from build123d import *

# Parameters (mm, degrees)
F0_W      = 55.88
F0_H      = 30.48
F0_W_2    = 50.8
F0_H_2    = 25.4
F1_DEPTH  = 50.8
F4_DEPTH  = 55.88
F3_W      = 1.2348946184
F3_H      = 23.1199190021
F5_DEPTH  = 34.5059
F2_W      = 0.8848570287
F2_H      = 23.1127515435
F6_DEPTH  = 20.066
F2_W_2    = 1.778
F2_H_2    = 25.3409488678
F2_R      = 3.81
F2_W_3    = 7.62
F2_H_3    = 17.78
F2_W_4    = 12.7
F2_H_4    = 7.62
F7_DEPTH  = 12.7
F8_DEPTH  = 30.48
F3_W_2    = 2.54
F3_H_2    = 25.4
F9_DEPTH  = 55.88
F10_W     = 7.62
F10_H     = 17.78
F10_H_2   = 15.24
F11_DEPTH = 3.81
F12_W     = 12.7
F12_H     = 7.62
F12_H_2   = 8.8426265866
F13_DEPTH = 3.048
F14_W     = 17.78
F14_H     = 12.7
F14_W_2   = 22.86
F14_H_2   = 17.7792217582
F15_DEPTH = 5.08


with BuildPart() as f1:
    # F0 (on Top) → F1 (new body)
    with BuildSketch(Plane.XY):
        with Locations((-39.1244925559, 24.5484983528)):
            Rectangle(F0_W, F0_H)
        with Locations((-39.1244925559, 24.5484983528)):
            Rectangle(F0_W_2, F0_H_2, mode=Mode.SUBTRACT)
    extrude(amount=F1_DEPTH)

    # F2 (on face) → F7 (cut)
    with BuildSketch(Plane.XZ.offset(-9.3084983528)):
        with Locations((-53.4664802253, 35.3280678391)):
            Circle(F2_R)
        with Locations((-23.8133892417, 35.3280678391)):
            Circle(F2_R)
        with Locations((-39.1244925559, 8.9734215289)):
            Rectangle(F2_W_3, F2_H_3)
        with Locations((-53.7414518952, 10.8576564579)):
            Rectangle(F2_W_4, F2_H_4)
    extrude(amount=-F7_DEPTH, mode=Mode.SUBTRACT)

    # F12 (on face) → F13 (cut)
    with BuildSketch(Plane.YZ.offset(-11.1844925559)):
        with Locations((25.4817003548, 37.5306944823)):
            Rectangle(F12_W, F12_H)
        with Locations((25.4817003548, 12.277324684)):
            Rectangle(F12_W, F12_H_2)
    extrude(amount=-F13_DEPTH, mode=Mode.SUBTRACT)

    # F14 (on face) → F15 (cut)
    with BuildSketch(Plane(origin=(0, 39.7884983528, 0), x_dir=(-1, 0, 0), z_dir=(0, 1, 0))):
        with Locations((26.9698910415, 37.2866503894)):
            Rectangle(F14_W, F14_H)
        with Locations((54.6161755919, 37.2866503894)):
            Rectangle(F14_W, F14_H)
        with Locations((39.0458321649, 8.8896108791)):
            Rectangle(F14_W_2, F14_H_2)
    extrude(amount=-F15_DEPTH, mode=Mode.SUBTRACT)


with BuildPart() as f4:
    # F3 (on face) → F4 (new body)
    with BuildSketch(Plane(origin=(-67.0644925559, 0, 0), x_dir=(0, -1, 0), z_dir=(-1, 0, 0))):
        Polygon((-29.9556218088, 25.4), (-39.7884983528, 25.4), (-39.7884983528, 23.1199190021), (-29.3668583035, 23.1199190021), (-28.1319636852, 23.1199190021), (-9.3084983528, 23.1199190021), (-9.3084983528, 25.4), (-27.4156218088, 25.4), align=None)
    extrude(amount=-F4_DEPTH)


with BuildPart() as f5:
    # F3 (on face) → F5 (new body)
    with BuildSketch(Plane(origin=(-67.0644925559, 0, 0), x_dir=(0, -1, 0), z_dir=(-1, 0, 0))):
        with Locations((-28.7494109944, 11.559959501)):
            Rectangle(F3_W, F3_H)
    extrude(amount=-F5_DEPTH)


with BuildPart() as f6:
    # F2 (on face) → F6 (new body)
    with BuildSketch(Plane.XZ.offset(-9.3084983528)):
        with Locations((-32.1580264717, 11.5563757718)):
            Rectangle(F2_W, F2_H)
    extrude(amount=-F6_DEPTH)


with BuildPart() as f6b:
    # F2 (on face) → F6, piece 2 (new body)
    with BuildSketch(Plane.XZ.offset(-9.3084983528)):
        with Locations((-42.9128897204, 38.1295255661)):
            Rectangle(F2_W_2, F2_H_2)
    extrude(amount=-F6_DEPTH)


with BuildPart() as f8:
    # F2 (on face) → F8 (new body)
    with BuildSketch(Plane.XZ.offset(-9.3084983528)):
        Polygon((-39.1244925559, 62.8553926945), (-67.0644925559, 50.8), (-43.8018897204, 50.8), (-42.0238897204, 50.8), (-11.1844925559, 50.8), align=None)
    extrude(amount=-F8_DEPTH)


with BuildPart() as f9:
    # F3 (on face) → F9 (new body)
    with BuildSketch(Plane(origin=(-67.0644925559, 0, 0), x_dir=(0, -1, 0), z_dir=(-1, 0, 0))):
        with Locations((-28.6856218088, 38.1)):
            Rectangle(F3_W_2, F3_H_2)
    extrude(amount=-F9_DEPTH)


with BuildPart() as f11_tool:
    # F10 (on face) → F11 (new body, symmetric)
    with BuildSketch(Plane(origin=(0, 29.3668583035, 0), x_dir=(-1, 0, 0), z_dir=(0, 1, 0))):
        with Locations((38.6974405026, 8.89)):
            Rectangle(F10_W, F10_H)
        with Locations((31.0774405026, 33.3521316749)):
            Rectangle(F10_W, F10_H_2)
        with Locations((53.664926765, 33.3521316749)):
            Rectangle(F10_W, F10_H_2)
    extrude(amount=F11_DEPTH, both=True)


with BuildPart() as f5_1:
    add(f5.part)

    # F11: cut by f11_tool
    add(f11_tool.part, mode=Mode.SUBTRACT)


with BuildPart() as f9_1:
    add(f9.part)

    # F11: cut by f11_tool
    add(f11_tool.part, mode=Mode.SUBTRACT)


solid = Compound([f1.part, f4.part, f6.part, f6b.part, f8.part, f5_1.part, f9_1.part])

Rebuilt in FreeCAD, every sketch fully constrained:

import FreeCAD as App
import Part
import Sketcher

V = App.Vector
Q = App.Units.Quantity

doc = App.newDocument("Part")
body = doc.addObject("PartDesign::Body", "Body")

# Sketch on XY plane
sketch1 = body.newObject("Sketcher::SketchObject", "Sketch")
sketch1.AttachmentSupport = (doc.getObject("XY_Plane"), [""])
sketch1.MapMode = "FlatFace"
sketch1.addGeometry([
    Part.LineSegment(V(-67, 40, 0), V(-67, 9, 0)),  # 0
    Part.LineSegment(V(-67, 9, 0), V(-11, 9, 0)),  # 1
    Part.LineSegment(V(-11, 9, 0), V(-11, 40, 0)),  # 2
    Part.LineSegment(V(-11, 40, 0), V(-67, 40, 0)),  # 3
    Part.LineSegment(V(-14, 12, 0), V(-65, 12, 0)),  # 4
    Part.LineSegment(V(-65, 12, 0), V(-65, 37, 0)),  # 5
    Part.LineSegment(V(-65, 37, 0), V(-14, 37, 0)),  # 6
    Part.LineSegment(V(-14, 37, 0), V(-14, 12, 0)),  # 7
], False)
sketch1.addConstraint([
    Sketcher.Constraint("Coincident", 0, 2, 1, 1),
    Sketcher.Constraint("Coincident", 1, 2, 2, 1),
    Sketcher.Constraint("Coincident", 2, 2, 3, 1),
    Sketcher.Constraint("Coincident", 3, 2, 0, 1),
    Sketcher.Constraint("Coincident", 4, 2, 5, 1),
    Sketcher.Constraint("Coincident", 5, 2, 6, 1),
    Sketcher.Constraint("Coincident", 6, 2, 7, 1),
    Sketcher.Constraint("Coincident", 7, 2, 4, 1),
    Sketcher.Constraint("Vertical", 0),
    Sketcher.Constraint("Horizontal", 1),
    Sketcher.Constraint("Vertical", 2),
    Sketcher.Constraint("Horizontal", 3),
    Sketcher.Constraint("Horizontal", 4),
    Sketcher.Constraint("Vertical", 5),
    Sketcher.Constraint("Horizontal", 6),
    Sketcher.Constraint("Vertical", 7),
    Sketcher.Constraint("DistanceX", 4, 2, 4, 1, Q("2 in")),
    Sketcher.Constraint("DistanceY", 5, 1, 5, 2, Q("1 in")),
    Sketcher.Constraint("DistanceX", 1, 1, 1, 2, Q("2.2 in")),
    Sketcher.Constraint("DistanceY", 0, 2, 0, 1, Q("1.2 in")),
    Sketcher.Constraint("DistanceX", 0, 2, 4, 2, Q("0.1 in")),
    Sketcher.Constraint("DistanceY", 0, 2, 4, 2, Q("0.1 in")),
    Sketcher.Constraint("DistanceY", -1, 1, 0, 2, 9.308498),
    Sketcher.Constraint("DistanceX", 0, 2, -1, 1, 67.064493),
])
pad1 = body.newObject("PartDesign::Pad", "Pad")
pad1.Profile = sketch1
pad1.Length = Q("2 in")

# Sketch on XZ plane
sketch2 = body.newObject("Sketcher::SketchObject", "Sketch001")
sketch2.AttachmentSupport = (doc.getObject("XZ_Plane"), [""])
sketch2.MapMode = "FlatFace"
sketch2.AttachmentOffset = App.Placement(V(0, 0, -9.308498), App.Rotation())
sketch2.addGeometry([
    Part.Circle(V(-53.5, 35.3, 0), V(0, 0, 1), 3.8),  # 0
    Part.Circle(V(-23.8, 35.3, 0), V(0, 0, 1), 3.8),  # 1
    Part.LineSegment(V(-42.9, 17.9, 0), V(-42.9, 0.1, 0)),  # 2
    Part.LineSegment(V(-42.9, 0.1, 0), V(-35.3, 0.1, 0)),  # 3
    Part.LineSegment(V(-35.3, 0.1, 0), V(-35.3, 17.9, 0)),  # 4
    Part.LineSegment(V(-35.3, 17.9, 0), V(-42.9, 17.9, 0)),  # 5
    Part.LineSegment(V(-60.1, 14.7, 0), V(-60.1, 7, 0)),  # 6
    Part.LineSegment(V(-60.1, 7, 0), V(-47.4, 7, 0)),  # 7
    Part.LineSegment(V(-47.4, 7, 0), V(-47.4, 14.7, 0)),  # 8
    Part.LineSegment(V(-47.4, 14.7, 0), V(-60.1, 14.7, 0)),  # 9
], False)
sketch2.addConstraint([
    Sketcher.Constraint("Coincident", 2, 2, 3, 1),
    Sketcher.Constraint("Coincident", 3, 2, 4, 1),
    Sketcher.Constraint("Coincident", 4, 2, 5, 1),
    Sketcher.Constraint("Coincident", 5, 2, 2, 1),
    Sketcher.Constraint("Coincident", 6, 2, 7, 1),
    Sketcher.Constraint("Coincident", 7, 2, 8, 1),
    Sketcher.Constraint("Coincident", 8, 2, 9, 1),
    Sketcher.Constraint("Coincident", 9, 2, 6, 1),
    Sketcher.Constraint("Vertical", 2),
    Sketcher.Constraint("Horizontal", 3),
    Sketcher.Constraint("Vertical", 4),
    Sketcher.Constraint("Horizontal", 5),
    Sketcher.Constraint("Vertical", 6),
    Sketcher.Constraint("Horizontal", 7),
    Sketcher.Constraint("Vertical", 8),
    Sketcher.Constraint("Horizontal", 9),
    Sketcher.Constraint("Equal", 0, 1),
    Sketcher.Constraint("Horizontal", 0, 3, 1, 3),
    Sketcher.Constraint("Equal", 5, 6),
    Sketcher.Constraint("Diameter", 0, Q("0.3 in")),
    Sketcher.Constraint("DistanceX", 3, 1, 3, 2, Q("0.3 in")),
    Sketcher.Constraint("DistanceX", 7, 1, 7, 2, Q("0.5 in")),
    Sketcher.Constraint("DistanceY", 2, 2, 2, 1, Q("0.7 in")),
    Sketcher.Constraint("DistanceX", 0, 3, -1, 1, 53.46648),
    Sketcher.Constraint("DistanceX", 1, 3, -1, 1, 23.813389),
    Sketcher.Constraint("DistanceY", -1, 1, 2, 2, 0.083422),
    Sketcher.Constraint("DistanceX", 6, 2, -1, 1, 60.091452),
    Sketcher.Constraint("DistanceX", 6, 2, 2, 2, 17.156959),
    Sketcher.Constraint("DistanceY", 6, 2, 0, 3, 28.280411),
    Sketcher.Constraint("DistanceY", -1, 1, 0, 3, 35.328068),
])
pocket1 = body.newObject("PartDesign::Pocket", "Pocket")
pocket1.Profile = sketch2
pocket1.Length = Q("0.5 in")

# Sketch on YZ plane
sketch3 = body.newObject("Sketcher::SketchObject", "Sketch002")
sketch3.AttachmentSupport = (doc.getObject("YZ_Plane"), [""])
sketch3.MapMode = "FlatFace"
sketch3.AttachmentOffset = App.Placement(V(0, 0, -11.184493), App.Rotation())
sketch3.addGeometry([
    Part.LineSegment(V(19, 41, 0), V(19, 34, 0)),  # 0
    Part.LineSegment(V(19, 34, 0), V(32, 34, 0)),  # 1
    Part.LineSegment(V(32, 34, 0), V(32, 41, 0)),  # 2
    Part.LineSegment(V(32, 41, 0), V(19, 41, 0)),  # 3
    Part.LineSegment(V(19, 17, 0), V(19, 8, 0)),  # 4
    Part.LineSegment(V(19, 8, 0), V(32, 8, 0)),  # 5
    Part.LineSegment(V(32, 8, 0), V(32, 17, 0)),  # 6
    Part.LineSegment(V(32, 17, 0), V(19, 17, 0)),  # 7
], False)
sketch3.addConstraint([
    Sketcher.Constraint("Coincident", 0, 2, 1, 1),
    Sketcher.Constraint("Coincident", 1, 2, 2, 1),
    Sketcher.Constraint("Coincident", 2, 2, 3, 1),
    Sketcher.Constraint("Coincident", 3, 2, 0, 1),
    Sketcher.Constraint("Coincident", 4, 2, 5, 1),
    Sketcher.Constraint("Coincident", 5, 2, 6, 1),
    Sketcher.Constraint("Coincident", 6, 2, 7, 1),
    Sketcher.Constraint("Coincident", 7, 2, 4, 1),
    Sketcher.Constraint("Vertical", 0),
    Sketcher.Constraint("Horizontal", 1),
    Sketcher.Constraint("Vertical", 2),
    Sketcher.Constraint("Horizontal", 3),
    Sketcher.Constraint("Vertical", 4),
    Sketcher.Constraint("Horizontal", 5),
    Sketcher.Constraint("Vertical", 6),
    Sketcher.Constraint("Horizontal", 7),
    Sketcher.Constraint("Vertical", 3, 2, 4, 2),
    Sketcher.Constraint("Vertical", 2, 2, 5, 2),
    Sketcher.Constraint("DistanceX", 1, 1, 1, 2, Q("0.5 in")),
    Sketcher.Constraint("DistanceY", 0, 2, 0, 1, Q("0.3 in")),
    Sketcher.Constraint("DistanceX", -1, 1, 0, 2, 19.1317),
    Sketcher.Constraint("DistanceY", 4, 2, 4, 1, 8.842627),
    Sketcher.Constraint("DistanceY", -1, 1, 4, 2, 7.856011),
    Sketcher.Constraint("DistanceY", -1, 1, 0, 2, 33.720694),
])
pocket2 = body.newObject("PartDesign::Pocket", "Pocket001")
pocket2.Profile = sketch3
pocket2.Length = Q("0.12 in")

# Sketch on XZ plane
sketch4 = body.newObject("Sketcher::SketchObject", "Sketch003")
sketch4.AttachmentSupport = (doc.getObject("XZ_Plane"), [""])
sketch4.MapMode = "FlatFace"
sketch4.AttachmentOffset = App.Placement(V(0, 0, -39.788498), App.Rotation())
sketch4.addGeometry([
    Part.LineSegment(V(-18, 44, 0), V(-18, 31, 0)),  # 0
    Part.LineSegment(V(-18, 31, 0), V(-36, 31, 0)),  # 1
    Part.LineSegment(V(-36, 31, 0), V(-36, 44, 0)),  # 2
    Part.LineSegment(V(-36, 44, 0), V(-18, 44, 0)),  # 3
    Part.LineSegment(V(-46, 44, 0), V(-46, 31, 0)),  # 4
    Part.LineSegment(V(-46, 31, 0), V(-64, 31, 0)),  # 5
    Part.LineSegment(V(-64, 31, 0), V(-64, 44, 0)),  # 6
    Part.LineSegment(V(-64, 44, 0), V(-46, 44, 0)),  # 7
    Part.LineSegment(V(-28, 18, 0), V(-28, 0, 0)),  # 8
    Part.LineSegment(V(-28, 0, 0), V(-50, 0, 0)),  # 9
    Part.LineSegment(V(-50, 0, 0), V(-50, 18, 0)),  # 10
    Part.LineSegment(V(-50, 18, 0), V(-28, 18, 0)),  # 11
], False)
sketch4.addConstraint([
    Sketcher.Constraint("Coincident", 0, 2, 1, 1),
    Sketcher.Constraint("Coincident", 1, 2, 2, 1),
    Sketcher.Constraint("Coincident", 2, 2, 3, 1),
    Sketcher.Constraint("Coincident", 3, 2, 0, 1),
    Sketcher.Constraint("Coincident", 4, 2, 5, 1),
    Sketcher.Constraint("Coincident", 5, 2, 6, 1),
    Sketcher.Constraint("Coincident", 6, 2, 7, 1),
    Sketcher.Constraint("Coincident", 7, 2, 4, 1),
    Sketcher.Constraint("Coincident", 8, 2, 9, 1),
    Sketcher.Constraint("Coincident", 9, 2, 10, 1),
    Sketcher.Constraint("Coincident", 10, 2, 11, 1),
    Sketcher.Constraint("Coincident", 11, 2, 8, 1),
    Sketcher.Constraint("Vertical", 0),
    Sketcher.Constraint("Horizontal", 1),
    Sketcher.Constraint("Vertical", 2),
    Sketcher.Constraint("Horizontal", 3),
    Sketcher.Constraint("Vertical", 4),
    Sketcher.Constraint("Horizontal", 5),
    Sketcher.Constraint("Vertical", 6),
    Sketcher.Constraint("Horizontal", 7),
    Sketcher.Constraint("Vertical", 8),
    Sketcher.Constraint("Horizontal", 9),
    Sketcher.Constraint("Vertical", 10),
    Sketcher.Constraint("Horizontal", 11),
    Sketcher.Constraint("PointOnObject", 8, 2, -1),
    Sketcher.Constraint("Horizontal", 1, 2, 4, 2),
    Sketcher.Constraint("Horizontal", 3, 2, 6, 2),
    Sketcher.Constraint("Equal", 3, 5),
    Sketcher.Constraint("DistanceX", 1, 2, 1, 1, Q("0.7 in")),
    Sketcher.Constraint("DistanceX", 9, 2, 9, 1, Q("0.9 in")),
    Sketcher.Constraint("DistanceY", 0, 2, 0, 1, Q("0.5 in")),
    Sketcher.Constraint("DistanceY", 8, 2, 8, 1, 17.779222),
    Sketcher.Constraint("DistanceX", 0, 2, -1, 1, 18.079891),
    Sketcher.Constraint("DistanceY", -1, 1, 0, 2, 30.93665),
    Sketcher.Constraint("DistanceX", 1, 2, 8, 2, 8.244059),
    Sketcher.Constraint("DistanceX", 4, 2, -1, 1, 45.726176),
])
pocket3 = body.newObject("PartDesign::Pocket", "Pocket002")
pocket3.Profile = sketch4
pocket3.Length = Q("0.2 in")
pocket3.Reversed = True
body2 = doc.addObject("PartDesign::Body", "Body001")

# Sketch on YZ plane
sketch5 = body2.newObject("Sketcher::SketchObject", "Sketch004")
sketch5.AttachmentSupport = (doc.getObject("YZ_Plane001"), [""])
sketch5.MapMode = "FlatFace"
sketch5.AttachmentOffset = App.Placement(V(0, 0, -67.064493), App.Rotation())
sketch5.addGeometry([
    Part.LineSegment(V(39.8, 25.4, 0), V(39.8, 23.1, 0)),
    Part.LineSegment(V(39.8, 23.1, 0), V(9.3, 23.1, 0)),
    Part.LineSegment(V(9.3, 23.1, 0), V(9.3, 25.4, 0)),
    Part.LineSegment(V(9.3, 25.4, 0), V(39.8, 25.4, 0)),
], False)
sketch5.addConstraint([
    Sketcher.Constraint("Coincident", 0, 2, 1, 1),
    Sketcher.Constraint("Coincident", 1, 2, 2, 1),
    Sketcher.Constraint("Coincident", 2, 2, 3, 1),
    Sketcher.Constraint("Coincident", 3, 2, 0, 1),
    Sketcher.Constraint("Vertical", 0),
    Sketcher.Constraint("Horizontal", 1),
    Sketcher.Constraint("Vertical", 2),
    Sketcher.Constraint("Horizontal", 3),
    Sketcher.Constraint("DistanceX", 1, 2, 1, 1, Q("1.2 in")),
    Sketcher.Constraint("DistanceY", -1, 1, 2, 2, Q("1 in")),
    Sketcher.Constraint("DistanceY", 0, 2, 0, 1, 2.280081),
    Sketcher.Constraint("DistanceX", -1, 1, 0, 2, 39.788498),
])
pad2 = body2.newObject("PartDesign::Pad", "Pad001")
pad2.Profile = sketch5
pad2.Length = Q("2.2 in")
body3 = doc.addObject("PartDesign::Body", "Body002")

# Sketch on YZ plane
sketch6 = body3.newObject("Sketcher::SketchObject", "Sketch005")
sketch6.AttachmentSupport = (doc.getObject("YZ_Plane002"), [""])
sketch6.MapMode = "FlatFace"
sketch6.AttachmentOffset = App.Placement(V(0, 0, -67.064493), App.Rotation())
sketch6.addGeometry([
    Part.LineSegment(V(29.4, 23.1, 0), V(29.4, 0, 0)),
    Part.LineSegment(V(29.4, 0, 0), V(28.1, 0, 0)),
    Part.LineSegment(V(28.1, 0, 0), V(28.1, 23.1, 0)),
    Part.LineSegment(V(28.1, 23.1, 0), V(29.4, 23.1, 0)),
], False)
sketch6.addConstraint([
    Sketcher.Constraint("Coincident", 0, 2, 1, 1),
    Sketcher.Constraint("Coincident", 1, 2, 2, 1),
    Sketcher.Constraint("Coincident", 2, 2, 3, 1),
    Sketcher.Constraint("Coincident", 3, 2, 0, 1),
    Sketcher.Constraint("Vertical", 0),
    Sketcher.Constraint("Horizontal", 1),
    Sketcher.Constraint("Vertical", 2),
    Sketcher.Constraint("Horizontal", 3),
    Sketcher.Constraint("PointOnObject", 0, 2, -1),
    Sketcher.Constraint("DistanceY", 0, 2, 0, 1, 23.119919),
    Sketcher.Constraint("DistanceX", 1, 2, 1, 1, 1.234895),
    Sketcher.Constraint("DistanceX", -1, 1, 0, 2, 29.366858),
])
pad3 = body3.newObject("PartDesign::Pad", "Pad002")
pad3.Profile = sketch6
pad3.Length = Q("1.3585 in")
body4 = doc.addObject("PartDesign::Body", "Body003")

# Sketch on XZ plane
sketch7 = body4.newObject("Sketcher::SketchObject", "Sketch006")
sketch7.AttachmentSupport = (doc.getObject("XZ_Plane003"), [""])
sketch7.MapMode = "FlatFace"
sketch7.AttachmentOffset = App.Placement(V(0, 0, -9.308498), App.Rotation())
sketch7.addGeometry([
    Part.LineSegment(V(-32.6, 23.1, 0), V(-32.6, 0, 0)),
    Part.LineSegment(V(-32.6, 0, 0), V(-31.7, 0, 0)),
    Part.LineSegment(V(-31.7, 0, 0), V(-31.7, 23.1, 0)),
    Part.LineSegment(V(-31.7, 23.1, 0), V(-32.6, 23.1, 0)),
], False)
sketch7.addConstraint([
    Sketcher.Constraint("Coincident", 0, 2, 1, 1),
    Sketcher.Constraint("Coincident", 1, 2, 2, 1),
    Sketcher.Constraint("Coincident", 2, 2, 3, 1),
    Sketcher.Constraint("Coincident", 3, 2, 0, 1),
    Sketcher.Constraint("Vertical", 0),
    Sketcher.Constraint("Horizontal", 1),
    Sketcher.Constraint("Vertical", 2),
    Sketcher.Constraint("Horizontal", 3),
    Sketcher.Constraint("PointOnObject", 0, 2, -1),
    Sketcher.Constraint("DistanceY", 0, 2, 0, 1, 23.112752),
    Sketcher.Constraint("DistanceX", 1, 1, 1, 2, 0.884857),
    Sketcher.Constraint("DistanceX", 0, 2, -1, 1, 32.600455),
])
pad4 = body4.newObject("PartDesign::Pad", "Pad003")
pad4.Profile = sketch7
pad4.Length = Q("0.79 in")
pad4.Reversed = True
body5 = doc.addObject("PartDesign::Body", "Body004")

# Sketch on XZ plane
sketch8 = body5.newObject("Sketcher::SketchObject", "Sketch007")
sketch8.AttachmentSupport = (doc.getObject("XZ_Plane004"), [""])
sketch8.MapMode = "FlatFace"
sketch8.AttachmentOffset = App.Placement(V(0, 0, -9.308498), App.Rotation())
sketch8.addGeometry([
    Part.LineSegment(V(-43.8, 50.8, 0), V(-43.8, 25.5, 0)),
    Part.LineSegment(V(-43.8, 25.5, 0), V(-42, 25.5, 0)),
    Part.LineSegment(V(-42, 25.5, 0), V(-42, 50.8, 0)),
    Part.LineSegment(V(-42, 50.8, 0), V(-43.8, 50.8, 0)),
], False)
sketch8.addConstraint([
    Sketcher.Constraint("Coincident", 0, 2, 1, 1),
    Sketcher.Constraint("Coincident", 1, 2, 2, 1),
    Sketcher.Constraint("Coincident", 2, 2, 3, 1),
    Sketcher.Constraint("Coincident", 3, 2, 0, 1),
    Sketcher.Constraint("Vertical", 0),
    Sketcher.Constraint("Horizontal", 1),
    Sketcher.Constraint("Vertical", 2),
    Sketcher.Constraint("Horizontal", 3),
    Sketcher.Constraint("DistanceY", -1, 1, 2, 2, Q("2 in")),
    Sketcher.Constraint("DistanceX", 1, 1, 1, 2, Q("0.07 in")),
    Sketcher.Constraint("DistanceY", 0, 2, 0, 1, 25.340949),
    Sketcher.Constraint("DistanceX", 0, 2, -1, 1, 43.80189),
])
pad5 = body5.newObject("PartDesign::Pad", "Pad004")
pad5.Profile = sketch8
pad5.Length = Q("0.79 in")
pad5.Reversed = True
body6 = doc.addObject("PartDesign::Body", "Body005")

# Sketch on XZ plane
sketch9 = body6.newObject("Sketcher::SketchObject", "Sketch008")
sketch9.AttachmentSupport = (doc.getObject("XZ_Plane005"), [""])
sketch9.MapMode = "FlatFace"
sketch9.AttachmentOffset = App.Placement(V(0, 0, -9.308498), App.Rotation())
sketch9.addGeometry([
    Part.LineSegment(V(-39, 63, 0), V(-67, 51, 0)),
    Part.LineSegment(V(-67, 51, 0), V(-11, 51, 0)),
    Part.LineSegment(V(-11, 51, 0), V(-39, 63, 0)),
], False)
sketch9.addConstraint([
    Sketcher.Constraint("Coincident", 0, 2, 1, 1),
    Sketcher.Constraint("Coincident", 1, 2, 2, 1),
    Sketcher.Constraint("Coincident", 2, 2, 0, 1),
    Sketcher.Constraint("Horizontal", 1),
    Sketcher.Constraint("Equal", 0, 2),
    Sketcher.Constraint("DistanceX", 1, 1, 1, 2, Q("2.2 in")),
    Sketcher.Constraint("DistanceY", -1, 1, 0, 2, Q("2 in")),
    Sketcher.Constraint("Distance", 0, 30.429855),
    Sketcher.Constraint("DistanceX", 0, 2, -1, 1, 67.064493),
])
pad6 = body6.newObject("PartDesign::Pad", "Pad005")
pad6.Profile = sketch9
pad6.Length = Q("1.2 in")
pad6.Reversed = True
body7 = doc.addObject("PartDesign::Body", "Body006")

# Sketch on YZ plane
sketch10 = body7.newObject("Sketcher::SketchObject", "Sketch009")
sketch10.AttachmentSupport = (doc.getObject("YZ_Plane006"), [""])
sketch10.MapMode = "FlatFace"
sketch10.AttachmentOffset = App.Placement(V(0, 0, -67.064493), App.Rotation())
sketch10.addGeometry([
    Part.LineSegment(V(30, 50.8, 0), V(30, 25.4, 0)),
    Part.LineSegment(V(30, 25.4, 0), V(27.4, 25.4, 0)),
    Part.LineSegment(V(27.4, 25.4, 0), V(27.4, 50.8, 0)),
    Part.LineSegment(V(27.4, 50.8, 0), V(30, 50.8, 0)),
], False)
sketch10.addConstraint([
    Sketcher.Constraint("Coincident", 0, 2, 1, 1),
    Sketcher.Constraint("Coincident", 1, 2, 2, 1),
    Sketcher.Constraint("Coincident", 2, 2, 3, 1),
    Sketcher.Constraint("Coincident", 3, 2, 0, 1),
    Sketcher.Constraint("Vertical", 0),
    Sketcher.Constraint("Horizontal", 1),
    Sketcher.Constraint("Vertical", 2),
    Sketcher.Constraint("Horizontal", 3),
    Sketcher.Constraint("DistanceY", 0, 2, 0, 1, Q("1 in")),
    Sketcher.Constraint("DistanceX", 1, 2, 1, 1, Q("0.1 in")),
    Sketcher.Constraint("DistanceY", -1, 1, 0, 2, Q("1 in")),
    Sketcher.Constraint("DistanceX", -1, 1, 0, 2, 29.955622),
])
pad7 = body7.newObject("PartDesign::Pad", "Pad006")
pad7.Profile = sketch10
pad7.Length = Q("2.2 in")
body8 = doc.addObject("PartDesign::Body", "Body007")
body8.AllowCompound = True

# Sketch on XZ plane
sketch11 = body8.newObject("Sketcher::SketchObject", "Sketch010")
sketch11.AttachmentSupport = (doc.getObject("XZ_Plane007"), [""])
sketch11.MapMode = "FlatFace"
sketch11.AttachmentOffset = App.Placement(V(0, 0, -29.366858), App.Rotation())
sketch11.addGeometry([
    Part.LineSegment(V(-35, 18, 0), V(-35, 0, 0)),  # 0
    Part.LineSegment(V(-35, 0, 0), V(-43, 0, 0)),  # 1
    Part.LineSegment(V(-43, 0, 0), V(-43, 18, 0)),  # 2
    Part.LineSegment(V(-43, 18, 0), V(-35, 18, 0)),  # 3
    Part.LineSegment(V(-27, 41, 0), V(-27, 26, 0)),  # 4
    Part.LineSegment(V(-27, 26, 0), V(-35, 26, 0)),  # 5
    Part.LineSegment(V(-35, 26, 0), V(-35, 41, 0)),  # 6
    Part.LineSegment(V(-35, 41, 0), V(-27, 41, 0)),  # 7
    Part.LineSegment(V(-50, 41, 0), V(-50, 26, 0)),  # 8
    Part.LineSegment(V(-50, 26, 0), V(-57, 26, 0)),  # 9
    Part.LineSegment(V(-57, 26, 0), V(-57, 41, 0)),  # 10
    Part.LineSegment(V(-57, 41, 0), V(-50, 41, 0)),  # 11
], False)
sketch11.addConstraint([
    Sketcher.Constraint("Coincident", 0, 2, 1, 1),
    Sketcher.Constraint("Coincident", 1, 2, 2, 1),
    Sketcher.Constraint("Coincident", 2, 2, 3, 1),
    Sketcher.Constraint("Coincident", 3, 2, 0, 1),
    Sketcher.Constraint("Coincident", 4, 2, 5, 1),
    Sketcher.Constraint("Coincident", 5, 2, 6, 1),
    Sketcher.Constraint("Coincident", 6, 2, 7, 1),
    Sketcher.Constraint("Coincident", 7, 2, 4, 1),
    Sketcher.Constraint("Coincident", 8, 2, 9, 1),
    Sketcher.Constraint("Coincident", 9, 2, 10, 1),
    Sketcher.Constraint("Coincident", 10, 2, 11, 1),
    Sketcher.Constraint("Coincident", 11, 2, 8, 1),
    Sketcher.Constraint("Vertical", 0),
    Sketcher.Constraint("Horizontal", 1),
    Sketcher.Constraint("Vertical", 2),
    Sketcher.Constraint("Horizontal", 3),
    Sketcher.Constraint("Vertical", 4),
    Sketcher.Constraint("Horizontal", 5),
    Sketcher.Constraint("Vertical", 6),
    Sketcher.Constraint("Horizontal", 7),
    Sketcher.Constraint("Vertical", 8),
    Sketcher.Constraint("Horizontal", 9),
    Sketcher.Constraint("Vertical", 10),
    Sketcher.Constraint("Horizontal", 11),
    Sketcher.Constraint("PointOnObject", 0, 2, -1),
    Sketcher.Constraint("Horizontal", 5, 2, 8, 2),
    Sketcher.Constraint("Horizontal", 7, 2, 10, 2),
    Sketcher.Constraint("Vertical", 3, 2, 5, 2),
    Sketcher.Constraint("Equal", 3, 5),
    Sketcher.Constraint("Equal", 7, 9),
    Sketcher.Constraint("DistanceX", 1, 2, 1, 1, Q("0.3 in")),
    Sketcher.Constraint("DistanceY", 0, 2, 0, 1, Q("0.7 in")),
    Sketcher.Constraint("DistanceY", 4, 2, 4, 1, Q("0.6 in")),
    Sketcher.Constraint("DistanceX", 0, 2, -1, 1, 34.887441),
    Sketcher.Constraint("DistanceY", -1, 1, 4, 2, 25.732132),
    Sketcher.Constraint("DistanceX", 8, 2, -1, 1, 49.854927),
])
pad8 = body8.newObject("PartDesign::Pad", "Pad007")
pad8.Profile = sketch11
pad8.Length = Q("0.3 in")
pad8.Midplane = True
doc.recompute()

body9 = doc.addObject("PartDesign::Body", "Body008")
body9.BaseFeature = body8
boolean = body3.newObject("PartDesign::Boolean", "Boolean")
boolean.Type = "Cut"
boolean.addObjects([body9])
doc.recompute()

boolean2 = body7.newObject("PartDesign::Boolean", "Boolean001")
boolean2.Type = "Cut"
boolean2.addObjects([body8])

doc.recompute()
